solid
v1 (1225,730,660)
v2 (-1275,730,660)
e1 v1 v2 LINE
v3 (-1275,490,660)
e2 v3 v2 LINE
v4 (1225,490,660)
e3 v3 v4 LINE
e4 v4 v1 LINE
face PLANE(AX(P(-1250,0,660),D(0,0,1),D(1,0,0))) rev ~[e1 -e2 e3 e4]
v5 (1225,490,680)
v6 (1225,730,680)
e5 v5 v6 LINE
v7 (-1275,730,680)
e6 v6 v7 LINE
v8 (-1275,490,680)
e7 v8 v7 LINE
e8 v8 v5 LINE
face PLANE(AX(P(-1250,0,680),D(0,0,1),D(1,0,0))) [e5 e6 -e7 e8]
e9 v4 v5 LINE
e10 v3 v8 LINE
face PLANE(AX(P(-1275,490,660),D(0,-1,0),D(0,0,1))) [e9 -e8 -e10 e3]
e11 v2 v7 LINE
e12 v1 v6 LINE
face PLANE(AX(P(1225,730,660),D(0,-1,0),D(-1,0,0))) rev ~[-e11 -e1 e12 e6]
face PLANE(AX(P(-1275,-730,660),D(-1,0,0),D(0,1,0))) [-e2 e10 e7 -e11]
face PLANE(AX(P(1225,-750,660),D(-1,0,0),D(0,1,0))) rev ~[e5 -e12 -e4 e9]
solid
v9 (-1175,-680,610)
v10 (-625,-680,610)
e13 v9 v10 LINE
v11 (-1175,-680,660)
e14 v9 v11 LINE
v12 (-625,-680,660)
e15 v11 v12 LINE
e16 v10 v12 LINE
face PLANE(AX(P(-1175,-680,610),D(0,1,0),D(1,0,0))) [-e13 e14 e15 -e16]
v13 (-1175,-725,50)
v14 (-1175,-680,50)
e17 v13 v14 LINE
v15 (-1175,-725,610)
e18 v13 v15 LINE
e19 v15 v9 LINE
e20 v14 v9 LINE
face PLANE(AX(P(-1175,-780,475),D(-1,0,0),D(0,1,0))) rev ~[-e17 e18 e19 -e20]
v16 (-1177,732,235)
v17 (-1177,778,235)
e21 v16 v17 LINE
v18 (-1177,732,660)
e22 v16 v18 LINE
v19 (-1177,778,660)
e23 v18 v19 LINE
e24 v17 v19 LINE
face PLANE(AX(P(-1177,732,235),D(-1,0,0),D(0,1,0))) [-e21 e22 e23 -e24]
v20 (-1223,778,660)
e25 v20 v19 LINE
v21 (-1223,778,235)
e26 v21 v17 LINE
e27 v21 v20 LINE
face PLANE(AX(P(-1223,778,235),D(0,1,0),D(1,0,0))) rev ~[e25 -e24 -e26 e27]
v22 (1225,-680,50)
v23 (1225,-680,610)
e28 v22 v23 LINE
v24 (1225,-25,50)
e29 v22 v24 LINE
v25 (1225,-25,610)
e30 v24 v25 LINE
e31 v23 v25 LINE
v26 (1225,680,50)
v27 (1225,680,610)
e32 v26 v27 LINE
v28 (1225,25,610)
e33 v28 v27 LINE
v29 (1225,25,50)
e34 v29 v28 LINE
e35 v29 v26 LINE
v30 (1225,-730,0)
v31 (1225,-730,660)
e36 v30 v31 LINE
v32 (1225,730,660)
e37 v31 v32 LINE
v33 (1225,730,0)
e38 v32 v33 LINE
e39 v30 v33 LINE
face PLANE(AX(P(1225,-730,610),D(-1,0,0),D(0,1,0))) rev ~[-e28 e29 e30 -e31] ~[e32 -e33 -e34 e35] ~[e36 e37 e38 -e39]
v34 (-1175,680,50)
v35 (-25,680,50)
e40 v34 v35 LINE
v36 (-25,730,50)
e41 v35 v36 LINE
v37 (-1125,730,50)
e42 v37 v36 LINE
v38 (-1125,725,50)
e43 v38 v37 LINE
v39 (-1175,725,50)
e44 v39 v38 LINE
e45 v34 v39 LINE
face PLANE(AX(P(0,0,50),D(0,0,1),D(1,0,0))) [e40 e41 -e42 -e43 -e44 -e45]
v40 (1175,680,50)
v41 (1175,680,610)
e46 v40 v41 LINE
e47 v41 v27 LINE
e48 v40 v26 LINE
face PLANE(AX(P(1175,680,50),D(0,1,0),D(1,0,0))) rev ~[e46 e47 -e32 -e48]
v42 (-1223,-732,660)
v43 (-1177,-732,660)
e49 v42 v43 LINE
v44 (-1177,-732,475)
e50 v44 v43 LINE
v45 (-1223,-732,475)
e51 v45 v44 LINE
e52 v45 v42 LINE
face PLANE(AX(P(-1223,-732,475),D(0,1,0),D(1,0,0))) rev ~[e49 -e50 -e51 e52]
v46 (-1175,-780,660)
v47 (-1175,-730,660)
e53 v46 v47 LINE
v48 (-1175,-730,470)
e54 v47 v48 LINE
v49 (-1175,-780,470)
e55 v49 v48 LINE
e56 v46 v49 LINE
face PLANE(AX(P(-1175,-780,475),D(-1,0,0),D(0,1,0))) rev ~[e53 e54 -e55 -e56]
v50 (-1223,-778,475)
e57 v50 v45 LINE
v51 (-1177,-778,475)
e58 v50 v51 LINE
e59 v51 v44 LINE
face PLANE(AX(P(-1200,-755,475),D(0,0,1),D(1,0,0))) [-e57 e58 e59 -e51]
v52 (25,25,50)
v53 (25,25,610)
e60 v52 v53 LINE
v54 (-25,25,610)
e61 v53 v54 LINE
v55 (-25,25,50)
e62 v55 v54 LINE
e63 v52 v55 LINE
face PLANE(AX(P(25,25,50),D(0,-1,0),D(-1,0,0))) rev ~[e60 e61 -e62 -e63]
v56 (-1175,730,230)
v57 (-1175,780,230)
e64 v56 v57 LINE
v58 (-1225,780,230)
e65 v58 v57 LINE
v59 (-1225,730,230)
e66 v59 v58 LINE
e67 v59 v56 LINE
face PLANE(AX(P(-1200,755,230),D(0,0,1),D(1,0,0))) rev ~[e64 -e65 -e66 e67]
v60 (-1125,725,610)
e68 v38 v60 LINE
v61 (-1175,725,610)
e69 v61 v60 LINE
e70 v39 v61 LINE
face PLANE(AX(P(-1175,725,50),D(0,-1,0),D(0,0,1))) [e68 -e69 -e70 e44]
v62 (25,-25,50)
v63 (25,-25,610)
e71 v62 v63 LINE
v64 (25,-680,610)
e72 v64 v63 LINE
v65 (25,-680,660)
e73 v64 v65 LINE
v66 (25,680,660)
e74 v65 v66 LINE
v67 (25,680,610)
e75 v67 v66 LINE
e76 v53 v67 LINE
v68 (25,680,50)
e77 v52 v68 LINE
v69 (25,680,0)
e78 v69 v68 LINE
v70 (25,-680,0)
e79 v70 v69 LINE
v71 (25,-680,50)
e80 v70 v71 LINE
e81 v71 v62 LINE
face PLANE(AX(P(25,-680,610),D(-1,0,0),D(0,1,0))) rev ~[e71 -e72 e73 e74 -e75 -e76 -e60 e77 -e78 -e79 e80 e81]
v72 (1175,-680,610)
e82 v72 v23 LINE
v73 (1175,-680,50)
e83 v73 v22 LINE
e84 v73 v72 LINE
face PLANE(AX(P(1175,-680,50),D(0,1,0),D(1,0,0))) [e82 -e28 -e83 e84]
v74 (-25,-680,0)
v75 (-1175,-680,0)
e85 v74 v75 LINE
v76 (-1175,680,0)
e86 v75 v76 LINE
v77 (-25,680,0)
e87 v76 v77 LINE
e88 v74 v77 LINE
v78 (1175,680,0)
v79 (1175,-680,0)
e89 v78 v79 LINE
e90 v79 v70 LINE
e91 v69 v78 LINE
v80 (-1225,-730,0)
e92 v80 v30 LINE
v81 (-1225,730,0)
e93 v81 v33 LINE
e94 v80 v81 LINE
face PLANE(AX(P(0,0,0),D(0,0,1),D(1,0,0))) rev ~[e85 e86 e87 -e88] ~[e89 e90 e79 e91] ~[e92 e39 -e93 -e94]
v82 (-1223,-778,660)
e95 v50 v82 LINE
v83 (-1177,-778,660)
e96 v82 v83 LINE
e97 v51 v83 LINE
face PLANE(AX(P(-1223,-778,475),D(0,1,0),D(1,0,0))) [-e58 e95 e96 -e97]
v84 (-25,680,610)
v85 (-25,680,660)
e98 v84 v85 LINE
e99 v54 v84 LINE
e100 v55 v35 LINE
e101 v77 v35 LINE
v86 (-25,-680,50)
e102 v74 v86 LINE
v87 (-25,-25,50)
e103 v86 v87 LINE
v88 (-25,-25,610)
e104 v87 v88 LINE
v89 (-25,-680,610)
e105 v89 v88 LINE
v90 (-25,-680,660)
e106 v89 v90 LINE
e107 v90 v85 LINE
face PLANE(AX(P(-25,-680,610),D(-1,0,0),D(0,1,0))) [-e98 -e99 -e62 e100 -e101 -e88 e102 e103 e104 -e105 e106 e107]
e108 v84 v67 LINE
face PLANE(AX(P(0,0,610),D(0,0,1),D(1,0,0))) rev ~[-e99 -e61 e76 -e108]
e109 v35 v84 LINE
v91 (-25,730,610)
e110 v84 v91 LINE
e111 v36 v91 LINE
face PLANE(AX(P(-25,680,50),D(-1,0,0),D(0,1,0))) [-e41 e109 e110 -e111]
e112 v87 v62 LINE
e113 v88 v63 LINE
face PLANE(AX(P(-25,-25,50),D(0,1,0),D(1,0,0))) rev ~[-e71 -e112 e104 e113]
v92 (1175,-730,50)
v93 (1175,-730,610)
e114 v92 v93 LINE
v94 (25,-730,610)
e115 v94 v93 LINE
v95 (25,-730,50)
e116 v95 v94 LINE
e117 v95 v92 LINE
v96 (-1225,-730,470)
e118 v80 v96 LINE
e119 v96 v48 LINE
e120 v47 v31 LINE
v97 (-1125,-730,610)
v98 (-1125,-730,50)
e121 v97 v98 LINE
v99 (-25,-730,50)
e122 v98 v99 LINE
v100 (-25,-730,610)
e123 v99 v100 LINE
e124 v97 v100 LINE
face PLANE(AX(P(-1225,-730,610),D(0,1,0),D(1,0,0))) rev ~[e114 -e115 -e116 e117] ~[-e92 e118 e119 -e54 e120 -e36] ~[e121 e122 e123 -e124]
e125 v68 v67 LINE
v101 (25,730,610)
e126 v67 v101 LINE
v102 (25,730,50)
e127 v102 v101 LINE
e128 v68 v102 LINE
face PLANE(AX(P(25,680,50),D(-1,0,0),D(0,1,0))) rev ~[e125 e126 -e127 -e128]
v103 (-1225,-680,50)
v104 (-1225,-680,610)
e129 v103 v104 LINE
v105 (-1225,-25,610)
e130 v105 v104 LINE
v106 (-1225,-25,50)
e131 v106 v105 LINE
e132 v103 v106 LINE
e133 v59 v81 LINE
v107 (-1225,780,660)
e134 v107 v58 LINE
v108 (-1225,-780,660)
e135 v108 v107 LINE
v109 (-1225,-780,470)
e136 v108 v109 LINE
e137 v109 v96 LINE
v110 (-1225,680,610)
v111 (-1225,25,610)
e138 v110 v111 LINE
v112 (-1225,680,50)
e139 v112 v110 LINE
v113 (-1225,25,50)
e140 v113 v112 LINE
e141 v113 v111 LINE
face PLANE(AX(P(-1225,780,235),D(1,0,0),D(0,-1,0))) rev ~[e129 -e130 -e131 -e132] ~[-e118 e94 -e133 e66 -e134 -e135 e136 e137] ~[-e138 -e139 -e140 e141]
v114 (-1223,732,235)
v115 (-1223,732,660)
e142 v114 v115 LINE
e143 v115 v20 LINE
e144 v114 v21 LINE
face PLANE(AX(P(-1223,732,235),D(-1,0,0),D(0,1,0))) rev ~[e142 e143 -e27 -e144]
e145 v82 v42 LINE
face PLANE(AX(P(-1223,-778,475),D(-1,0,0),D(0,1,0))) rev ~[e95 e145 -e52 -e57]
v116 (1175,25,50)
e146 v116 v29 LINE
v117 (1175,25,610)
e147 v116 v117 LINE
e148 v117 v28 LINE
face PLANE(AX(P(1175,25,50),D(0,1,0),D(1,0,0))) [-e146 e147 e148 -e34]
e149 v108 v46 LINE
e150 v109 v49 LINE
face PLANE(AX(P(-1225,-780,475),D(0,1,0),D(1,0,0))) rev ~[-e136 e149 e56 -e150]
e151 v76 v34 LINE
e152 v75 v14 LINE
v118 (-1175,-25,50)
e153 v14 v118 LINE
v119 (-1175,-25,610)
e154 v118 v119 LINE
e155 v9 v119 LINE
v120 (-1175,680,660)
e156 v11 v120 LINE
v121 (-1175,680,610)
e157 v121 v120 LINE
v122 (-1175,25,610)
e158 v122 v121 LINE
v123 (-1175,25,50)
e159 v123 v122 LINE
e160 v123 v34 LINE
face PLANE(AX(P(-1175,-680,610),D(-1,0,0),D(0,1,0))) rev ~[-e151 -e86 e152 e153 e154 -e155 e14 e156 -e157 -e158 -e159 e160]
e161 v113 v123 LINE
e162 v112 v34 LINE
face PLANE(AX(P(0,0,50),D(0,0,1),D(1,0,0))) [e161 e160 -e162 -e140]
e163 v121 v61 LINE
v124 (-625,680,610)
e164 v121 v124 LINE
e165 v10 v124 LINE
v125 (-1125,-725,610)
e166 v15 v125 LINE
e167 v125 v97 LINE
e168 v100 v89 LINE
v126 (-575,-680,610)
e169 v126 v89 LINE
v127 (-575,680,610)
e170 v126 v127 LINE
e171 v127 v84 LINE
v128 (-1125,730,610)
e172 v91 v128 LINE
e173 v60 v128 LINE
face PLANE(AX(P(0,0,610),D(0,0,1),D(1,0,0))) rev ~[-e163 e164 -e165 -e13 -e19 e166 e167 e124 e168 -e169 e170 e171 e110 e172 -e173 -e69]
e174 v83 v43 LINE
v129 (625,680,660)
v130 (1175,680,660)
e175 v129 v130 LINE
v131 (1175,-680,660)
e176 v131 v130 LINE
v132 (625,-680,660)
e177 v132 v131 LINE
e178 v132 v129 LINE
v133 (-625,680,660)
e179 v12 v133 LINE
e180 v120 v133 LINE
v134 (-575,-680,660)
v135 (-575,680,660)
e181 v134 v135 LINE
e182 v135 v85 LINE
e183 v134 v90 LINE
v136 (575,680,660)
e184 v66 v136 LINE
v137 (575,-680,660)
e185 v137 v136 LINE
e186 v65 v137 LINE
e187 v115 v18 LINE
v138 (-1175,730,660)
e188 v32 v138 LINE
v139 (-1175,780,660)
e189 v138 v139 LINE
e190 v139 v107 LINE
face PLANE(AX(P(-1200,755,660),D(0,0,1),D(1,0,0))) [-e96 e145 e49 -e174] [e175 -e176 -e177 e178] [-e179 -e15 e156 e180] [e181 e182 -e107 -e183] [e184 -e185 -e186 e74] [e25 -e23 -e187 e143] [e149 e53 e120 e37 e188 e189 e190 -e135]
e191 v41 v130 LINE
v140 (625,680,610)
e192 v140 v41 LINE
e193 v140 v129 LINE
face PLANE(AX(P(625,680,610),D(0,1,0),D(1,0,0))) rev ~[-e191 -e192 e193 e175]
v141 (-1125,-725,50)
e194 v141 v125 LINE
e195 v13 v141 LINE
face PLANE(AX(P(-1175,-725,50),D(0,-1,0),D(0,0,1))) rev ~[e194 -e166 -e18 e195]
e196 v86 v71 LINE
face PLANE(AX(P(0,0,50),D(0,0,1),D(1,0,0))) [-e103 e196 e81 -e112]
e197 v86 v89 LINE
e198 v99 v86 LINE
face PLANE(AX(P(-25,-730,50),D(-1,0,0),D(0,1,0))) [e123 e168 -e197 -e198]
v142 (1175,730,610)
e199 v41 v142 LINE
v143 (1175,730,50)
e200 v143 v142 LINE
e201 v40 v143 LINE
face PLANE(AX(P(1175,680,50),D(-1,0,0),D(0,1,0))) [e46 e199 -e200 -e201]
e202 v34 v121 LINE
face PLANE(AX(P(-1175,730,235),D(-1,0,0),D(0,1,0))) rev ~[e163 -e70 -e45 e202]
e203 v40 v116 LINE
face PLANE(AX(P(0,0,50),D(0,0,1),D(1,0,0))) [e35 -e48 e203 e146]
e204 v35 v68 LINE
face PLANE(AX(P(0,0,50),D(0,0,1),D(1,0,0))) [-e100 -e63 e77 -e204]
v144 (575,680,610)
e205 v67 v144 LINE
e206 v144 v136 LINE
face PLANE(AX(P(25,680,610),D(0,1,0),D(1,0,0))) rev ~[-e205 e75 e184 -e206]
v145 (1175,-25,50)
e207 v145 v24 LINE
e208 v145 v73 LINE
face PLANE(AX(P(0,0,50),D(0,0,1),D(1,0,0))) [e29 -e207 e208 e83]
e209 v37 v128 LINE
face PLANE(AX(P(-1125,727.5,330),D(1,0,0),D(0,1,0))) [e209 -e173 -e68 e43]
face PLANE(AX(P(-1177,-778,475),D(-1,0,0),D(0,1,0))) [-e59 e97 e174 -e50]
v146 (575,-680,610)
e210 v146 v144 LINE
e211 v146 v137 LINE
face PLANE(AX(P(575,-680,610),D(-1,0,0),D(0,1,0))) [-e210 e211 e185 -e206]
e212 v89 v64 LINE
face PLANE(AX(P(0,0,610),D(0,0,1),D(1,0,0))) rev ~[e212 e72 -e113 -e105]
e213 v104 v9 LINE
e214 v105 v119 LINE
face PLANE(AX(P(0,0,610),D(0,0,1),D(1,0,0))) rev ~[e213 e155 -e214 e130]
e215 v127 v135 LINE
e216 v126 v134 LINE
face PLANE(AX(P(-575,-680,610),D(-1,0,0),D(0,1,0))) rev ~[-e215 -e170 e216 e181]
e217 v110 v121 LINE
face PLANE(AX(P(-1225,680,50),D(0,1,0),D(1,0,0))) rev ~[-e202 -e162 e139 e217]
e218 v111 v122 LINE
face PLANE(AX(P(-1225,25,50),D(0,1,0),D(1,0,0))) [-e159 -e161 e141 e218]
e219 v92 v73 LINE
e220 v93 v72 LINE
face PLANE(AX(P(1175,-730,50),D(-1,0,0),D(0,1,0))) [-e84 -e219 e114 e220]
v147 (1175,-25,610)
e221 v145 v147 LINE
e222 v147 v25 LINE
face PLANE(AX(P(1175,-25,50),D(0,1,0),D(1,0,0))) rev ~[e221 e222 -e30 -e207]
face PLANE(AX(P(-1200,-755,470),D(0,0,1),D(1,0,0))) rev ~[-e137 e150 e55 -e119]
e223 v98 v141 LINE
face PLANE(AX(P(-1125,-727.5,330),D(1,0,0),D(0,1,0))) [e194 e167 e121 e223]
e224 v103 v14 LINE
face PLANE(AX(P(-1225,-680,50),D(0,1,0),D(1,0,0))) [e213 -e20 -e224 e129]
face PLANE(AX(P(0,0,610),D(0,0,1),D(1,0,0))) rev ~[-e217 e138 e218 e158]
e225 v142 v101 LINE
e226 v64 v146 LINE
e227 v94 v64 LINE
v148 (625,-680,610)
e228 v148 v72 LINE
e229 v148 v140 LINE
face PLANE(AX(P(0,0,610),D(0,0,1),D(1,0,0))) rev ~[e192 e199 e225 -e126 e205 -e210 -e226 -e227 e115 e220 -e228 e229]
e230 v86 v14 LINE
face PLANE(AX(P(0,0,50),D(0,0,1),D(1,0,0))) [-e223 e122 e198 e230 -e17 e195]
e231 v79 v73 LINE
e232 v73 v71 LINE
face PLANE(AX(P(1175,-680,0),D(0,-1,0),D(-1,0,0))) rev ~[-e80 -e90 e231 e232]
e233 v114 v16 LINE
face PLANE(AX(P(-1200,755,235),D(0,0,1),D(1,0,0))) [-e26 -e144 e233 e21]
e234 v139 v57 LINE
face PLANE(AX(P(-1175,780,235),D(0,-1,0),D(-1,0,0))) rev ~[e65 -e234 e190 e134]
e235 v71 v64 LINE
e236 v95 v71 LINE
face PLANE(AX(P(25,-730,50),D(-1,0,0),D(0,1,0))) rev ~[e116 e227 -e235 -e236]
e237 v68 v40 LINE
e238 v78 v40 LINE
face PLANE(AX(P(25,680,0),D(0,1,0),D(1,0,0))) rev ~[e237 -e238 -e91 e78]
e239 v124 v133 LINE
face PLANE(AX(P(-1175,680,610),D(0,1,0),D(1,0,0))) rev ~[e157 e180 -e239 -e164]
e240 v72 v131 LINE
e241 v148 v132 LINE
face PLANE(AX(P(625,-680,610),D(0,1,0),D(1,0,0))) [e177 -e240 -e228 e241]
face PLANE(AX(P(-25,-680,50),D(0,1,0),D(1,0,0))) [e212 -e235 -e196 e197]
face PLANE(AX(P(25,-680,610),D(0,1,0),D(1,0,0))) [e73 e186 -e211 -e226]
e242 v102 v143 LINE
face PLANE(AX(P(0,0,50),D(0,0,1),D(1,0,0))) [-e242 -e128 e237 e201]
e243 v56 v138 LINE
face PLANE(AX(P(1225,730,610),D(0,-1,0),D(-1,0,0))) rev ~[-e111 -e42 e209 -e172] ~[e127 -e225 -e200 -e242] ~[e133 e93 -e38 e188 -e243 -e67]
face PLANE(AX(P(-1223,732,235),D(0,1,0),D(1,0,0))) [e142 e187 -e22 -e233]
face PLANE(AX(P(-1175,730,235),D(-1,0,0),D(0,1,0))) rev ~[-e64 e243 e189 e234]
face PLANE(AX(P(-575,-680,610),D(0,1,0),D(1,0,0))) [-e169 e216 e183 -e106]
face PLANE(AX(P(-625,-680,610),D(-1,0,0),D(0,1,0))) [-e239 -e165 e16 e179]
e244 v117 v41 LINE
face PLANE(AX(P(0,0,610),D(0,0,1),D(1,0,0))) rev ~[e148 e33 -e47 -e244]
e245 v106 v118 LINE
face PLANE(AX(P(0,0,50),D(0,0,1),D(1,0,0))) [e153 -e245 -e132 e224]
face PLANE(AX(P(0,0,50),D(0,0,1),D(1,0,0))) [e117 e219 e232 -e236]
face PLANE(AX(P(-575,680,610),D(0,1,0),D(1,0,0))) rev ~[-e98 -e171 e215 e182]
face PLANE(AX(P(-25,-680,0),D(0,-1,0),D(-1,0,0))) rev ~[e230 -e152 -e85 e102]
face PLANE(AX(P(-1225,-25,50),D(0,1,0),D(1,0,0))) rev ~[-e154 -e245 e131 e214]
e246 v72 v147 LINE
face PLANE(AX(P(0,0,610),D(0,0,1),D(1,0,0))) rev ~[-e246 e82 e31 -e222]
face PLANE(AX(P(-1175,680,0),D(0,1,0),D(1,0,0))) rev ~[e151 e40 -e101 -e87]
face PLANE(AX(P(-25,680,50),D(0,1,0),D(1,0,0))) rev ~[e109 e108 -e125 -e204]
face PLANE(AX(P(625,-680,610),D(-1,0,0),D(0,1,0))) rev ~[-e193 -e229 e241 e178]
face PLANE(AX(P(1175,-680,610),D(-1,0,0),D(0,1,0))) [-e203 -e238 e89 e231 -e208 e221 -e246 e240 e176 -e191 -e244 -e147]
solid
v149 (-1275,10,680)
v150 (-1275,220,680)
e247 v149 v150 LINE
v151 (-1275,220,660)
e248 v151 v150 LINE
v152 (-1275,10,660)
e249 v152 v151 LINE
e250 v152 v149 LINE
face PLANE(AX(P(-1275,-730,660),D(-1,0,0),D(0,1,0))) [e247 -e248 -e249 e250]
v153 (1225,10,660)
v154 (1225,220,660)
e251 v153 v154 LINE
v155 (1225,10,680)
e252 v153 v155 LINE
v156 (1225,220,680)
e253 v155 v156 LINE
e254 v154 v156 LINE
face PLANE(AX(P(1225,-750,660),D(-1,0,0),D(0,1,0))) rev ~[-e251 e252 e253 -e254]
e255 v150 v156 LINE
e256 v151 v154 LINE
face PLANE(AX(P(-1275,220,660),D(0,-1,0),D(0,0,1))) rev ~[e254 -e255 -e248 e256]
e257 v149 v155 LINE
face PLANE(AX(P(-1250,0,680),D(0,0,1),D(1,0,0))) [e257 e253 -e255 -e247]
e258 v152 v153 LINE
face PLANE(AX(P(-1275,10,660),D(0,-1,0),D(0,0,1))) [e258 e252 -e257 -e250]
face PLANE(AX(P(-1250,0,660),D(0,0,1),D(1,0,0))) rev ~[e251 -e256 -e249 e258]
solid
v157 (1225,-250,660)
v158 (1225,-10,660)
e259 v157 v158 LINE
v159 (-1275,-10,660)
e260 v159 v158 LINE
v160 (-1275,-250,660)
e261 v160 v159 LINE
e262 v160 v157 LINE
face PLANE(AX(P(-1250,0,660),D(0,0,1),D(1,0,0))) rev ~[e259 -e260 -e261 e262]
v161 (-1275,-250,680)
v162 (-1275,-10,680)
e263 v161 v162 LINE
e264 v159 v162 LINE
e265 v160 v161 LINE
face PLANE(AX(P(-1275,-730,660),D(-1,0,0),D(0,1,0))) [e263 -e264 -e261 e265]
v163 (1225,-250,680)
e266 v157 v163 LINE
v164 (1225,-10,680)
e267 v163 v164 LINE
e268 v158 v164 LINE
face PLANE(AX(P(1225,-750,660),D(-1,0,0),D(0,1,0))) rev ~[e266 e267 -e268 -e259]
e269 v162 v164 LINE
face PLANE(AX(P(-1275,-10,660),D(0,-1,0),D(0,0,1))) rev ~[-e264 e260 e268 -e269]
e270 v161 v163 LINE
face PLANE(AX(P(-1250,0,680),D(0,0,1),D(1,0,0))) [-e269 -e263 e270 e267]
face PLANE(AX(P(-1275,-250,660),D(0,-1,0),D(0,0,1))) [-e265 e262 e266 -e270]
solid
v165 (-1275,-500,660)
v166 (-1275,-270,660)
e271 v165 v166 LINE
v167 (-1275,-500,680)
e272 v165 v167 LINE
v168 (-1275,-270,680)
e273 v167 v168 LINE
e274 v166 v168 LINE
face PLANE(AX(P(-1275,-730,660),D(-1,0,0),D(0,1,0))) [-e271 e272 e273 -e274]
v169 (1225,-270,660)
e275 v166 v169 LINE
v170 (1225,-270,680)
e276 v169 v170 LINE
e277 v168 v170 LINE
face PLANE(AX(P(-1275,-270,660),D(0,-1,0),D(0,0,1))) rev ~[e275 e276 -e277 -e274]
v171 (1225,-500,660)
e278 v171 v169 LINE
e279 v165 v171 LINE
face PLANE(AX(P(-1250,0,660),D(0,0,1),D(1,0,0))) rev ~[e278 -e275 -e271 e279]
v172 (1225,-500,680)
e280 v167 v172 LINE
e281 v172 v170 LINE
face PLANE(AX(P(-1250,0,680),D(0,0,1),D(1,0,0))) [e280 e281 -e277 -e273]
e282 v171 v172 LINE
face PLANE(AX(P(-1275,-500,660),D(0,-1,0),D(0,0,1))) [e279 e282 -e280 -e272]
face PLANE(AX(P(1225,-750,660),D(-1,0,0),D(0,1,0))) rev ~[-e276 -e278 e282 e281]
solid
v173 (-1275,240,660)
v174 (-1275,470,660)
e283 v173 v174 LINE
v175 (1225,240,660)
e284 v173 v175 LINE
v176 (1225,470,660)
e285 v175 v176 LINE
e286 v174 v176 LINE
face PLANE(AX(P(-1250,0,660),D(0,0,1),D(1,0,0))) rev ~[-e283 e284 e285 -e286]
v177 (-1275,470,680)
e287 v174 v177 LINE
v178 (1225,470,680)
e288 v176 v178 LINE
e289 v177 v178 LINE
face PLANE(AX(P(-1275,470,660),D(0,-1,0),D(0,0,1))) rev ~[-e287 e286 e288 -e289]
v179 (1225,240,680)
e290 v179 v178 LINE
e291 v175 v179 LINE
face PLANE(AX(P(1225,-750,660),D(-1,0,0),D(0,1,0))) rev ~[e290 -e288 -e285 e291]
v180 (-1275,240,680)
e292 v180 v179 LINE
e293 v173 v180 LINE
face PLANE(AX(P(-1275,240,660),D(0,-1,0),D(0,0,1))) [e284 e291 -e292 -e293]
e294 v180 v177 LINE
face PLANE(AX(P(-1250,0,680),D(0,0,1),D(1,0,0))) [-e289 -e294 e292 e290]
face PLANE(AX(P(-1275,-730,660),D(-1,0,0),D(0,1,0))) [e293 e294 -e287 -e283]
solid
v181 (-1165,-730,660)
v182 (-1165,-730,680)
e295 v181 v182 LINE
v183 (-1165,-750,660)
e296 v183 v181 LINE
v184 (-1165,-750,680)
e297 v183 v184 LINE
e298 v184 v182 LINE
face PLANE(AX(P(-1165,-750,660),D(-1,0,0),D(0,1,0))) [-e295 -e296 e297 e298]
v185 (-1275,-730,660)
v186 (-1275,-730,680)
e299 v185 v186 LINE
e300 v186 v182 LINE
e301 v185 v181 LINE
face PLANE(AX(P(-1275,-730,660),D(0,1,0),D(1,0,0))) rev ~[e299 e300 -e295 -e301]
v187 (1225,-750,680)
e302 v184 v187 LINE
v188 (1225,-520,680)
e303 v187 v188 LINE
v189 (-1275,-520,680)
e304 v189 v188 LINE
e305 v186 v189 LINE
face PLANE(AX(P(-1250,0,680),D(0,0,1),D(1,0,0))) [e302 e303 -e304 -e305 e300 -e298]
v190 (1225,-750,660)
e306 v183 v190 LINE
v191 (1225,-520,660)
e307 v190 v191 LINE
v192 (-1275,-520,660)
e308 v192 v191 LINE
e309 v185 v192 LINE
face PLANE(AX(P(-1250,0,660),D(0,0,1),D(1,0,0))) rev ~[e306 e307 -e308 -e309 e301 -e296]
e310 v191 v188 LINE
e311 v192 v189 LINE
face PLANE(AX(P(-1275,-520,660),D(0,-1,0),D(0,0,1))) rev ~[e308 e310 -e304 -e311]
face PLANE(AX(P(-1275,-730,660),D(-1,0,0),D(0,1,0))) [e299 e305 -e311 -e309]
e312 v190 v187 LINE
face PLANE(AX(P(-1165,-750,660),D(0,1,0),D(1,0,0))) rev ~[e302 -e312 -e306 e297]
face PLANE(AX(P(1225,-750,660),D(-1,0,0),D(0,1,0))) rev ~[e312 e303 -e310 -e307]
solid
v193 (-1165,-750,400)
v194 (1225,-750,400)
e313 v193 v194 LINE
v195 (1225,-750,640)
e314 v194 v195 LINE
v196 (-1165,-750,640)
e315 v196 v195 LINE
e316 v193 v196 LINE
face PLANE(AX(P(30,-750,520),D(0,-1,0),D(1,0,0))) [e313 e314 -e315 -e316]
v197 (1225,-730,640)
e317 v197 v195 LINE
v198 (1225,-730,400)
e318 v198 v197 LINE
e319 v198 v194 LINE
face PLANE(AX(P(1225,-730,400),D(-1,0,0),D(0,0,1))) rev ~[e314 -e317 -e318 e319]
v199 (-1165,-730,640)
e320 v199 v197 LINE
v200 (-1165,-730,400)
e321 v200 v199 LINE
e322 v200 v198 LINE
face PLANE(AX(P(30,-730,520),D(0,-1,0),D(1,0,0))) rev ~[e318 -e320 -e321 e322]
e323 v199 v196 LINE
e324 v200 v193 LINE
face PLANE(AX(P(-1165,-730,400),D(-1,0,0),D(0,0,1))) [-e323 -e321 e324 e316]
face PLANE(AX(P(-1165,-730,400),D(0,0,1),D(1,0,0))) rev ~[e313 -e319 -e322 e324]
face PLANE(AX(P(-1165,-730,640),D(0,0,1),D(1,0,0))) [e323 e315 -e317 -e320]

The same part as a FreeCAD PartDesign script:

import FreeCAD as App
import Part
import Sketcher
from FreeCAD import Vector


def add_polygon(sketch, points):
    """Adds a closed chain of lines whose ends are joined by coincident constraints."""
    first, n = sketch.GeometryCount, len(points)
    for a, b in zip(points, points[1:] + points[:1]):
        sketch.addGeometry(Part.LineSegment(App.Vector(*a, 0), App.Vector(*b, 0)), False)
    for i in range(n):
        sketch.addConstraint(Sketcher.Constraint("Coincident", first + i, 2, first + (i + 1) % n, 1))

doc = App.newDocument("Part")
body = doc.addObject("PartDesign::Body", "Body")

# Sketch on XY plane
sketch1 = doc.addObject("Sketcher::SketchObject", "Sketch")
body.addObject(sketch1)
sketch1.AttachmentSupport = (doc.XY_Plane, [""])
sketch1.MapMode = "FlatFace"
add_polygon(sketch1, [(-1225, 730), (-1225, -730), (1225, -730), (1225, 730)])  # lines 0-3
add_polygon(sketch1, [(1175, -680), (25, -680), (25, 680), (1175, 680)])  # lines 4-7
add_polygon(sketch1, [(-25, -680), (-1175, -680), (-1175, 680), (-25, 680)])  # lines 8-11
sketch1.addConstraint(Sketcher.Constraint("Vertical", 0))
sketch1.addConstraint(Sketcher.Constraint("Horizontal", 1))
sketch1.addConstraint(Sketcher.Constraint("Vertical", 2))
sketch1.addConstraint(Sketcher.Constraint("Horizontal", 3))
sketch1.addConstraint(Sketcher.Constraint("Horizontal", 4))
sketch1.addConstraint(Sketcher.Constraint("Vertical", 5))
sketch1.addConstraint(Sketcher.Constraint("Horizontal", 6))
sketch1.addConstraint(Sketcher.Constraint("Vertical", 7))
sketch1.addConstraint(Sketcher.Constraint("Horizontal", 8))
sketch1.addConstraint(Sketcher.Constraint("Vertical", 9))
sketch1.addConstraint(Sketcher.Constraint("Horizontal", 10))
sketch1.addConstraint(Sketcher.Constraint("Vertical", 11))
sketch1.addConstraint(Sketcher.Constraint("Symmetric", 0, 2, 2, 2, -1, 1))
sketch1.addConstraint(Sketcher.Constraint("Symmetric", 6, 2, 8, 2, -1, 1))
sketch1.addConstraint(Sketcher.Constraint("Symmetric", 4, 2, 10, 2, -1, 1))
sketch1.addConstraint(Sketcher.Constraint("Horizontal", 7, 2, 8, 2))
sketch1.addConstraint(Sketcher.Constraint("DistanceX", 1, 1, 1, 2, 2450.0))
sketch1.addConstraint(Sketcher.Constraint("DistanceX", 4, 2, 4, 1, 1150.0))
sketch1.addConstraint(Sketcher.Constraint("DistanceY", 0, 2, 0, 1, 1460.0))
sketch1.addConstraint(Sketcher.Constraint("DistanceY", 5, 1, 5, 2, 1360.0))
sketch1.addConstraint(Sketcher.Constraint("DistanceX", -1, 1, 4, 2, 25.0))
pad1 = doc.addObject("PartDesign::Pad", "Pad")
body.addObject(pad1)
pad1.Profile = sketch1
pad1.Length = 50

# Sketch on XY plane
sketch2 = doc.addObject("Sketcher::SketchObject", "Sketch001")
body.addObject(sketch2)
sketch2.AttachmentSupport = (doc.XY_Plane, [""])
sketch2.MapMode = "FlatFace"
sketch2.AttachmentOffset = App.Placement(Vector(0, 0, 50), App.Rotation())
add_polygon(sketch2, [(-1225, 730), (-1225, 680), (-1175, 680), (-1175, 730)])  # lines 0-3
add_polygon(sketch2, [(-25, 730), (-25, 680), (25, 680), (25, 730)])  # lines 4-7
add_polygon(sketch2, [(1175, 730), (1175, 680), (1225, 680), (1225, 730)])  # lines 8-11
add_polygon(sketch2, [(1175, -680), (1175, -730), (1225, -730), (1225, -680)])  # lines 12-15
add_polygon(sketch2, [(-25, -680), (-25, -730), (25, -730), (25, -680)])  # lines 16-19
add_polygon(sketch2, [(-1225, -680), (-1225, -730), (-1175, -730), (-1175, -680)])  # lines 20-23
add_polygon(sketch2, [(-1225, -25), (-1175, -25), (-1175, 25), (-1225, 25)])  # lines 24-27
add_polygon(sketch2, [(-25, -25), (25, -25), (25, 25), (-25, 25)])  # lines 28-31
add_polygon(sketch2, [(1175, 25), (1175, -25), (1225, -25), (1225, 25)])  # lines 32-35
sketch2.addConstraint(Sketcher.Constraint("Vertical", 0))
sketch2.addConstraint(Sketcher.Constraint("Horizontal", 1))
sketch2.addConstraint(Sketcher.Constraint("Vertical", 2))
sketch2.addConstraint(Sketcher.Constraint("Horizontal", 3))
sketch2.addConstraint(Sketcher.Constraint("Vertical", 4))
sketch2.addConstraint(Sketcher.Constraint("Horizontal", 5))
sketch2.addConstraint(Sketcher.Constraint("Vertical", 6))
sketch2.addConstraint(Sketcher.Constraint("Horizontal", 7))
sketch2.addConstraint(Sketcher.Constraint("Vertical", 8))
sketch2.addConstraint(Sketcher.Constraint("Horizontal", 9))
sketch2.addConstraint(Sketcher.Constraint("Vertical", 10))
sketch2.addConstraint(Sketcher.Constraint("Horizontal", 11))
sketch2.addConstraint(Sketcher.Constraint("Vertical", 12))
sketch2.addConstraint(Sketcher.Constraint("Horizontal", 13))
sketch2.addConstraint(Sketcher.Constraint("Vertical", 14))
sketch2.addConstraint(Sketcher.Constraint("Horizontal", 15))
sketch2.addConstraint(Sketcher.Constraint("Vertical", 16))
sketch2.addConstraint(Sketcher.Constraint("Horizontal", 17))
sketch2.addConstraint(Sketcher.Constraint("Vertical", 18))
sketch2.addConstraint(Sketcher.Constraint("Horizontal", 19))
sketch2.addConstraint(Sketcher.Constraint("Vertical", 20))
sketch2.addConstraint(Sketcher.Constraint("Horizontal", 21))
sketch2.addConstraint(Sketcher.Constraint("Vertical", 22))
sketch2.addConstraint(Sketcher.Constraint("Horizontal", 23))
sketch2.addConstraint(Sketcher.Constraint("Horizontal", 24))
sketch2.addConstraint(Sketcher.Constraint("Vertical", 25))
sketch2.addConstraint(Sketcher.Constraint("Horizontal", 26))
sketch2.addConstraint(Sketcher.Constraint("Vertical", 27))
sketch2.addConstraint(Sketcher.Constraint("Horizontal", 28))
sketch2.addConstraint(Sketcher.Constraint("Vertical", 29))
sketch2.addConstraint(Sketcher.Constraint("Horizontal", 30))
sketch2.addConstraint(Sketcher.Constraint("Vertical", 31))
sketch2.addConstraint(Sketcher.Constraint("Vertical", 32))
sketch2.addConstraint(Sketcher.Constraint("Horizontal", 33))
sketch2.addConstraint(Sketcher.Constraint("Vertical", 34))
sketch2.addConstraint(Sketcher.Constraint("Horizontal", 35))
sketch2.addConstraint(Sketcher.Constraint("Symmetric", 2, 2, 12, 2, -1, 1))
sketch2.addConstraint(Sketcher.Constraint("Symmetric", 0, 2, 14, 2, -1, 1))
sketch2.addConstraint(Sketcher.Constraint("Symmetric", 6, 2, 16, 2, -1, 1))
sketch2.addConstraint(Sketcher.Constraint("Symmetric", 4, 2, 18, 2, -1, 1))
sketch2.addConstraint(Sketcher.Constraint("Symmetric", 10, 2, 20, 2, -1, 1))
sketch2.addConstraint(Sketcher.Constraint("Symmetric", 8, 2, 22, 2, -1, 1))
sketch2.addConstraint(Sketcher.Constraint("Symmetric", 28, 2, 30, 2, -1, 1))
sketch2.addConstraint(Sketcher.Constraint("Symmetric", 25, 2, 32, 2, -1, 1))
sketch2.addConstraint(Sketcher.Constraint("Symmetric", 27, 2, 34, 2, -1, 1))
sketch2.addConstraint(Sketcher.Constraint("Symmetric", 1, 2, 8, 2, -2))
sketch2.addConstraint(Sketcher.Constraint("Symmetric", 3, 2, 10, 2, -2))
sketch2.addConstraint(Sketcher.Constraint("Horizontal", 1, 2, 4, 2))
sketch2.addConstraint(Sketcher.Constraint("Horizontal", 3, 2, 6, 2))
sketch2.addConstraint(Sketcher.Constraint("Horizontal", 27, 2, 28, 2))
sketch2.addConstraint(Sketcher.Constraint("Horizontal", 26, 2, 29, 2))
sketch2.addConstraint(Sketcher.Constraint("Vertical", 7, 2, 16, 2))
sketch2.addConstraint(Sketcher.Constraint("Vertical", 22, 2, 24, 2))
sketch2.addConstraint(Sketcher.Constraint("Vertical", 23, 2, 26, 2))
sketch2.addConstraint(Sketcher.Constraint("Vertical", 18, 2, 28, 2))
sketch2.addConstraint(Sketcher.Constraint("Equal", 3, 5))
sketch2.addConstraint(Sketcher.Constraint("Equal", 35, 0))
sketch2.addConstraint(Sketcher.Constraint("Equal", 22, 25))
sketch2.addConstraint(Sketcher.Constraint("DistanceX", 1, 1, 1, 2, 50.0))
sketch2.addConstraint(Sketcher.Constraint("DistanceX", 0, 2, -1, 1, 1225.0))
sketch2.addConstraint(Sketcher.Constraint("DistanceY", -1, 1, 0, 2, 680.0))
pad2 = doc.addObject("PartDesign::Pad", "Pad001")
body.addObject(pad2)
pad2.Profile = sketch2
pad2.Length = 560

# Sketch on XY plane
sketch3 = doc.addObject("Sketcher::SketchObject", "Sketch002")
body.addObject(sketch3)
sketch3.AttachmentSupport = (doc.XY_Plane, [""])
sketch3.MapMode = "FlatFace"
sketch3.AttachmentOffset = App.Placement(Vector(0, 0, 610), App.Rotation())
add_polygon(sketch3, [(-1225, 730), (-1225, -730), (1225, -730), (1225, 730)])  # lines 0-3
add_polygon(sketch3, [(-625, -680), (-1175, -680), (-1175, 680), (-625, 680)])  # lines 4-7
add_polygon(sketch3, [(-25, -680), (-575, -680), (-575, 680), (-25, 680)])  # lines 8-11
add_polygon(sketch3, [(575, -680), (25, -680), (25, 680), (575, 680)])  # lines 12-15
add_polygon(sketch3, [(1175, -680), (625, -680), (625, 680), (1175, 680)])  # lines 16-19
sketch3.addConstraint(Sketcher.Constraint("Vertical", 0))
sketch3.addConstraint(Sketcher.Constraint("Horizontal", 1))
sketch3.addConstraint(Sketcher.Constraint("Vertical", 2))
sketch3.addConstraint(Sketcher.Constraint("Horizontal", 3))
sketch3.addConstraint(Sketcher.Constraint("Horizontal", 4))
sketch3.addConstraint(Sketcher.Constraint("Vertical", 5))
sketch3.addConstraint(Sketcher.Constraint("Horizontal", 6))
sketch3.addConstraint(Sketcher.Constraint("Vertical", 7))
sketch3.addConstraint(Sketcher.Constraint("Horizontal", 8))
sketch3.addConstraint(Sketcher.Constraint("Vertical", 9))
sketch3.addConstraint(Sketcher.Constraint("Horizontal", 10))
sketch3.addConstraint(Sketcher.Constraint("Vertical", 11))
sketch3.addConstraint(Sketcher.Constraint("Horizontal", 12))
sketch3.addConstraint(Sketcher.Constraint("Vertical", 13))
sketch3.addConstraint(Sketcher.Constraint("Horizontal", 14))
sketch3.addConstraint(Sketcher.Constraint("Vertical", 15))
sketch3.addConstraint(Sketcher.Constraint("Horizontal", 16))
sketch3.addConstraint(Sketcher.Constraint("Vertical", 17))
sketch3.addConstraint(Sketcher.Constraint("Horizontal", 18))
sketch3.addConstraint(Sketcher.Constraint("Vertical", 19))
sketch3.addConstraint(Sketcher.Constraint("Symmetric", 0, 2, 2, 2, -1, 1))
sketch3.addConstraint(Sketcher.Constraint("Symmetric", 10, 2, 12, 2, -1, 1))
sketch3.addConstraint(Sketcher.Constraint("Symmetric", 8, 2, 14, 2, -1, 1))
sketch3.addConstraint(Sketcher.Constraint("Symmetric", 6, 2, 16, 2, -1, 1))
sketch3.addConstraint(Sketcher.Constraint("Symmetric", 4, 2, 18, 2, -1, 1))
sketch3.addConstraint(Sketcher.Constraint("Horizontal", 7, 2, 8, 2))
sketch3.addConstraint(Sketcher.Constraint("Horizontal", 6, 2, 9, 2))
sketch3.addConstraint(Sketcher.Constraint("Horizontal", 11, 2, 12, 2))
sketch3.addConstraint(Sketcher.Constraint("Equal", 6, 8))
sketch3.addConstraint(Sketcher.Constraint("DistanceX", 1, 1, 1, 2, 2450.0))
sketch3.addConstraint(Sketcher.Constraint("DistanceX", 4, 2, 4, 1, 550.0))
sketch3.addConstraint(Sketcher.Constraint("DistanceY", 0, 2, 0, 1, 1460.0))
sketch3.addConstraint(Sketcher.Constraint("DistanceY", 5, 1, 5, 2, 1360.0))
sketch3.addConstraint(Sketcher.Constraint("DistanceX", 4, 2, -1, 1, 1175.0))
sketch3.addConstraint(Sketcher.Constraint("DistanceX", 8, 2, -1, 1, 575.0))
pad3 = doc.addObject("PartDesign::Pad", "Pad002")
body.addObject(pad3)
pad3.Profile = sketch3
pad3.Length = 50

# Sketch on XY plane
sketch4 = doc.addObject("Sketcher::SketchObject", "Sketch003")
body.addObject(sketch4)
sketch4.AttachmentSupport = (doc.XY_Plane, [""])
sketch4.MapMode = "FlatFace"
sketch4.AttachmentOffset = App.Placement(Vector(0, 0, 470), App.Rotation())
add_polygon(sketch4, [(-1225, -730), (-1225, -780), (-1175, -780), (-1175, -730)])  # lines 0-3
sketch4.addConstraint(Sketcher.Constraint("Vertical", 0))
sketch4.addConstraint(Sketcher.Constraint("Horizontal", 1))
sketch4.addConstraint(Sketcher.Constraint("Vertical", 2))
sketch4.addConstraint(Sketcher.Constraint("Horizontal", 3))
sketch4.addConstraint(Sketcher.Constraint("Equal", 3, 0))
sketch4.addConstraint(Sketcher.Constraint("DistanceX", 1, 1, 1, 2, 50.0))
sketch4.addConstraint(Sketcher.Constraint("DistanceX", 0, 2, -1, 1, 1225.0))
sketch4.addConstraint(Sketcher.Constraint("DistanceY", 0, 2, -1, 1, 780.0))
pad4 = doc.addObject("PartDesign::Pad", "Pad003")
body.addObject(pad4)
pad4.Profile = sketch4
pad4.Length = 5

# Sketch on XY plane
sketch5 = doc.addObject("Sketcher::SketchObject", "Sketch004")
body.addObject(sketch5)
sketch5.AttachmentSupport = (doc.XY_Plane, [""])
sketch5.MapMode = "FlatFace"
sketch5.AttachmentOffset = App.Placement(Vector(0, 0, 475), App.Rotation())
add_polygon(sketch5, [(-1175, -730), (-1225, -730), (-1225, -780), (-1175, -780)])  # lines 0-3
add_polygon(sketch5, [(-1177, -778), (-1223, -778), (-1223, -732), (-1177, -732)])  # lines 4-7
sketch5.addConstraint(Sketcher.Constraint("Horizontal", 0))
sketch5.addConstraint(Sketcher.Constraint("Vertical", 1))
sketch5.addConstraint(Sketcher.Constraint("Horizontal", 2))
sketch5.addConstraint(Sketcher.Constraint("Vertical", 3))
sketch5.addConstraint(Sketcher.Constraint("Horizontal", 4))
sketch5.addConstraint(Sketcher.Constraint("Vertical", 5))
sketch5.addConstraint(Sketcher.Constraint("Horizontal", 6))
sketch5.addConstraint(Sketcher.Constraint("Vertical", 7))
sketch5.addConstraint(Sketcher.Constraint("Equal", 2, 1))
sketch5.addConstraint(Sketcher.Constraint("Equal", 6, 5))
sketch5.addConstraint(Sketcher.Constraint("DistanceX", 0, 2, 0, 1, 50.0))
sketch5.addConstraint(Sketcher.Constraint("DistanceX", 4, 2, 4, 1, 46.0))
sketch5.addConstraint(Sketcher.Constraint("DistanceX", 0, 2, -1, 1, 1225.0))
sketch5.addConstraint(Sketcher.Constraint("DistanceY", 0, 2, -1, 1, 730.0))
sketch5.addConstraint(Sketcher.Constraint("DistanceX", 4, 2, -1, 1, 1223.0))
sketch5.addConstraint(Sketcher.Constraint("DistanceY", 4, 2, -1, 1, 778.0))
pad5 = doc.addObject("PartDesign::Pad", "Pad004")
body.addObject(pad5)
pad5.Profile = sketch5
pad5.Length = 185

# Sketch on XY plane
sketch6 = doc.addObject("Sketcher::SketchObject", "Sketch005")
body.addObject(sketch6)
sketch6.AttachmentSupport = (doc.XY_Plane, [""])
sketch6.MapMode = "FlatFace"
sketch6.AttachmentOffset = App.Placement(Vector(0, 0, 230), App.Rotation())
add_polygon(sketch6, [(-1225, 780), (-1225, 730), (-1175, 730), (-1175, 780)])  # lines 0-3
sketch6.addConstraint(Sketcher.Constraint("Vertical", 0))
sketch6.addConstraint(Sketcher.Constraint("Horizontal", 1))
sketch6.addConstraint(Sketcher.Constraint("Vertical", 2))
sketch6.addConstraint(Sketcher.Constraint("Horizontal", 3))
sketch6.addConstraint(Sketcher.Constraint("Equal", 3, 0))
sketch6.addConstraint(Sketcher.Constraint("DistanceX", 1, 1, 1, 2, 50.0))
sketch6.addConstraint(Sketcher.Constraint("DistanceX", 0, 2, -1, 1, 1225.0))
sketch6.addConstraint(Sketcher.Constraint("DistanceY", -1, 1, 0, 2, 730.0))
pad6 = doc.addObject("PartDesign::Pad", "Pad005")
body.addObject(pad6)
pad6.Profile = sketch6
pad6.Length = 5

# Sketch on XY plane
sketch7 = doc.addObject("Sketcher::SketchObject", "Sketch006")
body.addObject(sketch7)
sketch7.AttachmentSupport = (doc.XY_Plane, [""])
sketch7.MapMode = "FlatFace"
sketch7.AttachmentOffset = App.Placement(Vector(0, 0, 235), App.Rotation())
add_polygon(sketch7, [(-1225, 780), (-1225, 730), (-1175, 730), (-1175, 780)])  # lines 0-3
add_polygon(sketch7, [(-1177, 732), (-1223, 732), (-1223, 778), (-1177, 778)])  # lines 4-7
sketch7.addConstraint(Sketcher.Constraint("Vertical", 0))
sketch7.addConstraint(Sketcher.Constraint("Horizontal", 1))
sketch7.addConstraint(Sketcher.Constraint("Vertical", 2))
sketch7.addConstraint(Sketcher.Constraint("Horizontal", 3))
sketch7.addConstraint(Sketcher.Constraint("Horizontal", 4))
sketch7.addConstraint(Sketcher.Constraint("Vertical", 5))
sketch7.addConstraint(Sketcher.Constraint("Horizontal", 6))
sketch7.addConstraint(Sketcher.Constraint("Vertical", 7))
sketch7.addConstraint(Sketcher.Constraint("Equal", 3, 0))
sketch7.addConstraint(Sketcher.Constraint("Equal", 6, 5))
sketch7.addConstraint(Sketcher.Constraint("DistanceX", 1, 1, 1, 2, 50.0))
sketch7.addConstraint(Sketcher.Constraint("DistanceX", 4, 2, 4, 1, 46.0))
sketch7.addConstraint(Sketcher.Constraint("DistanceX", 0, 2, -1, 1, 1225.0))
sketch7.addConstraint(Sketcher.Constraint("DistanceY", -1, 1, 0, 2, 730.0))
sketch7.addConstraint(Sketcher.Constraint("DistanceX", 4, 2, -1, 1, 1223.0))
sketch7.addConstraint(Sketcher.Constraint("DistanceY", -1, 1, 4, 2, 732.0))
pad7 = doc.addObject("PartDesign::Pad", "Pad006")
body.addObject(pad7)
pad7.Profile = sketch7
pad7.Length = 425

# Sketch on YZ plane
sketch8 = doc.addObject("Sketcher::SketchObject", "Sketch007")
body.addObject(sketch8)
sketch8.AttachmentSupport = (doc.YZ_Plane, [""])
sketch8.MapMode = "FlatFace"
sketch8.AttachmentOffset = App.Placement(Vector(0, 0, -1175), App.Rotation())
add_polygon(sketch8, [(725, 610), (725, 50), (730, 50), (730, 610)])  # lines 0-3
add_polygon(sketch8, [(-725, 610), (-730, 610), (-730, 50), (-725, 50)])  # lines 4-7
sketch8.addConstraint(Sketcher.Constraint("Vertical", 0))
sketch8.addConstraint(Sketcher.Constraint("Horizontal", 1))
sketch8.addConstraint(Sketcher.Constraint("Vertical", 2))
sketch8.addConstraint(Sketcher.Constraint("Horizontal", 3))
sketch8.addConstraint(Sketcher.Constraint("Horizontal", 4))
sketch8.addConstraint(Sketcher.Constraint("Vertical", 5))
sketch8.addConstraint(Sketcher.Constraint("Horizontal", 6))
sketch8.addConstraint(Sketcher.Constraint("Vertical", 7))
sketch8.addConstraint(Sketcher.Constraint("Symmetric", 2, 2, 4, 2, -2))
sketch8.addConstraint(Sketcher.Constraint("Symmetric", 0, 2, 6, 2, -2))
sketch8.addConstraint(Sketcher.Constraint("DistanceX", 1, 1, 1, 2, 5.0))
sketch8.addConstraint(Sketcher.Constraint("DistanceY", 0, 2, 0, 1, 560.0))
sketch8.addConstraint(Sketcher.Constraint("DistanceX", -1, 1, 0, 2, 725.0))
sketch8.addConstraint(Sketcher.Constraint("DistanceY", -1, 1, 0, 2, 50.0))
pad8 = doc.addObject("PartDesign::Pad", "Pad007")
body.addObject(pad8)
pad8.Profile = sketch8
pad8.Length = 50
body2 = doc.addObject("PartDesign::Body", "Body001")

# Sketch on XZ plane
sketch9 = doc.addObject("Sketcher::SketchObject", "Sketch008")
body2.addObject(sketch9)
sketch9.AttachmentSupport = (doc.getObject("XZ_Plane001"), [""])
sketch9.MapMode = "FlatFace"
sketch9.AttachmentOffset = App.Placement(Vector(0, 0, 730), App.Rotation())
add_polygon(sketch9, [(-1165, 640), (-1165, 400), (1225, 400), (1225, 640)])  # lines 0-3
sketch9.addConstraint(Sketcher.Constraint("Vertical", 0))
sketch9.addConstraint(Sketcher.Constraint("Horizontal", 1))
sketch9.addConstraint(Sketcher.Constraint("Vertical", 2))
sketch9.addConstraint(Sketcher.Constraint("Horizontal", 3))
sketch9.addConstraint(Sketcher.Constraint("DistanceX", 1, 1, 1, 2, 2390.0))
sketch9.addConstraint(Sketcher.Constraint("DistanceY", 0, 2, 0, 1, 240.0))
sketch9.addConstraint(Sketcher.Constraint("DistanceX", 0, 2, -1, 1, 1165.0))
sketch9.addConstraint(Sketcher.Constraint("DistanceY", -1, 1, 0, 2, 400.0))
pad9 = doc.addObject("PartDesign::Pad", "Pad008")
body2.addObject(pad9)
pad9.Profile = sketch9
pad9.Length = 20
body3 = doc.addObject("PartDesign::Body", "Body002")
body3.AllowCompound = True

# Sketch on XY plane
sketch10 = doc.addObject("Sketcher::SketchObject", "Sketch009")
body3.addObject(sketch10)
sketch10.AttachmentSupport = (doc.getObject("XY_Plane002"), [""])
sketch10.MapMode = "FlatFace"
sketch10.AttachmentOffset = App.Placement(Vector(0, 0, 660), App.Rotation())
add_polygon(sketch10, [(-1275, 730), (-1275, -730), (-1165, -730), (-1165, -750), (1225, -750), (1225, 730)])  # lines 0-5
sketch10.addConstraint(Sketcher.Constraint("Vertical", 0))
sketch10.addConstraint(Sketcher.Constraint("Horizontal", 1))
sketch10.addConstraint(Sketcher.Constraint("Vertical", 2))
sketch10.addConstraint(Sketcher.Constraint("Horizontal", 3))
sketch10.addConstraint(Sketcher.Constraint("Vertical", 4))
sketch10.addConstraint(Sketcher.Constraint("Horizontal", 5))
sketch10.addConstraint(Sketcher.Constraint("DistanceX", 1, 1, 1, 2, 110.0))
sketch10.addConstraint(Sketcher.Constraint("DistanceX", 3, 1, 3, 2, 2390.0))
sketch10.addConstraint(Sketcher.Constraint("DistanceY", 0, 2, 0, 1, 1460.0))
sketch10.addConstraint(Sketcher.Constraint("DistanceY", 2, 2, 2, 1, 20.0))
sketch10.addConstraint(Sketcher.Constraint("DistanceX", 0, 2, -1, 1, 1275.0))
sketch10.addConstraint(Sketcher.Constraint("DistanceY", 0, 2, -1, 1, 730.0))
pad10 = doc.addObject("PartDesign::Pad", "Pad009")
body3.addObject(pad10)
pad10.Profile = sketch10
pad10.Length = 20

# Sketch on YZ plane
sketch11 = doc.addObject("Sketcher::SketchObject", "Sketch010")
body3.addObject(sketch11)
sketch11.AttachmentSupport = (doc.getObject("YZ_Plane002"), [""])
sketch11.MapMode = "FlatFace"
sketch11.AttachmentOffset = App.Placement(Vector(0, 0, -1275), App.Rotation())
add_polygon(sketch11, [(-500, 680), (-500, 660), (-520, 660), (-520, 680)])  # lines 0-3
add_polygon(sketch11, [(490, 680), (490, 660), (470, 660), (470, 680)])  # lines 4-7
add_polygon(sketch11, [(240, 680), (240, 660), (220, 660), (220, 680)])  # lines 8-11
add_polygon(sketch11, [(10, 680), (10, 660), (-10, 660), (-10, 680)])  # lines 12-15
add_polygon(sketch11, [(-250, 680), (-250, 660), (-270, 660), (-270, 680)])  # lines 16-19
sketch11.addConstraint(Sketcher.Constraint("Vertical", 0))
sketch11.addConstraint(Sketcher.Constraint("Horizontal", 1))
sketch11.addConstraint(Sketcher.Constraint("Vertical", 2))
sketch11.addConstraint(Sketcher.Constraint("Horizontal", 3))
sketch11.addConstraint(Sketcher.Constraint("Vertical", 4))
sketch11.addConstraint(Sketcher.Constraint("Horizontal", 5))
sketch11.addConstraint(Sketcher.Constraint("Vertical", 6))
sketch11.addConstraint(Sketcher.Constraint("Horizontal", 7))
sketch11.addConstraint(Sketcher.Constraint("Vertical", 8))
sketch11.addConstraint(Sketcher.Constraint("Horizontal", 9))
sketch11.addConstraint(Sketcher.Constraint("Vertical", 10))
sketch11.addConstraint(Sketcher.Constraint("Horizontal", 11))
sketch11.addConstraint(Sketcher.Constraint("Vertical", 12))
sketch11.addConstraint(Sketcher.Constraint("Horizontal", 13))
sketch11.addConstraint(Sketcher.Constraint("Vertical", 14))
sketch11.addConstraint(Sketcher.Constraint("Horizontal", 15))
sketch11.addConstraint(Sketcher.Constraint("Vertical", 16))
sketch11.addConstraint(Sketcher.Constraint("Horizontal", 17))
sketch11.addConstraint(Sketcher.Constraint("Vertical", 18))
sketch11.addConstraint(Sketcher.Constraint("Horizontal", 19))
sketch11.addConstraint(Sketcher.Constraint("Horizontal", 1, 2, 4, 2))
sketch11.addConstraint(Sketcher.Constraint("Horizontal", 3, 2, 6, 2))
sketch11.addConstraint(Sketcher.Constraint("Horizontal", 5, 2, 8, 2))
sketch11.addConstraint(Sketcher.Constraint("Horizontal", 7, 2, 10, 2))
sketch11.addConstraint(Sketcher.Constraint("Horizontal", 9, 2, 12, 2))
sketch11.addConstraint(Sketcher.Constraint("Horizontal", 11, 2, 14, 2))
sketch11.addConstraint(Sketcher.Constraint("Horizontal", 13, 2, 16, 2))
sketch11.addConstraint(Sketcher.Constraint("Horizontal", 15, 2, 18, 2))
sketch11.addConstraint(Sketcher.Constraint("Equal", 3, 5))
sketch11.addConstraint(Sketcher.Constraint("Equal", 7, 9))
sketch11.addConstraint(Sketcher.Constraint("Equal", 11, 13))
sketch11.addConstraint(Sketcher.Constraint("Equal", 15, 17))
sketch11.addConstraint(Sketcher.Constraint("Equal", 19, 0))
sketch11.addConstraint(Sketcher.Constraint("DistanceX", 1, 2, 1, 1, 20.0))
sketch11.addConstraint(Sketcher.Constraint("DistanceX", 0, 2, -1, 1, 500.0))
sketch11.addConstraint(Sketcher.Constraint("DistanceY", -1, 1, 0, 2, 660.0))
sketch11.addConstraint(Sketcher.Constraint("DistanceX", -1, 1, 4, 2, 490.0))
sketch11.addConstraint(Sketcher.Constraint("DistanceX", -1, 1, 8, 2, 240.0))
sketch11.addConstraint(Sketcher.Constraint("DistanceX", -1, 1, 12, 2, 10.0))
sketch11.addConstraint(Sketcher.Constraint("DistanceX", 16, 2, -1, 1, 250.0))
pocket1 = doc.addObject("PartDesign::Pocket", "Pocket")
body3.addObject(pocket1)
pocket1.Profile = sketch11
pocket1.Type = "ThroughAll"
pocket1.Reversed = True

doc.recompute()
